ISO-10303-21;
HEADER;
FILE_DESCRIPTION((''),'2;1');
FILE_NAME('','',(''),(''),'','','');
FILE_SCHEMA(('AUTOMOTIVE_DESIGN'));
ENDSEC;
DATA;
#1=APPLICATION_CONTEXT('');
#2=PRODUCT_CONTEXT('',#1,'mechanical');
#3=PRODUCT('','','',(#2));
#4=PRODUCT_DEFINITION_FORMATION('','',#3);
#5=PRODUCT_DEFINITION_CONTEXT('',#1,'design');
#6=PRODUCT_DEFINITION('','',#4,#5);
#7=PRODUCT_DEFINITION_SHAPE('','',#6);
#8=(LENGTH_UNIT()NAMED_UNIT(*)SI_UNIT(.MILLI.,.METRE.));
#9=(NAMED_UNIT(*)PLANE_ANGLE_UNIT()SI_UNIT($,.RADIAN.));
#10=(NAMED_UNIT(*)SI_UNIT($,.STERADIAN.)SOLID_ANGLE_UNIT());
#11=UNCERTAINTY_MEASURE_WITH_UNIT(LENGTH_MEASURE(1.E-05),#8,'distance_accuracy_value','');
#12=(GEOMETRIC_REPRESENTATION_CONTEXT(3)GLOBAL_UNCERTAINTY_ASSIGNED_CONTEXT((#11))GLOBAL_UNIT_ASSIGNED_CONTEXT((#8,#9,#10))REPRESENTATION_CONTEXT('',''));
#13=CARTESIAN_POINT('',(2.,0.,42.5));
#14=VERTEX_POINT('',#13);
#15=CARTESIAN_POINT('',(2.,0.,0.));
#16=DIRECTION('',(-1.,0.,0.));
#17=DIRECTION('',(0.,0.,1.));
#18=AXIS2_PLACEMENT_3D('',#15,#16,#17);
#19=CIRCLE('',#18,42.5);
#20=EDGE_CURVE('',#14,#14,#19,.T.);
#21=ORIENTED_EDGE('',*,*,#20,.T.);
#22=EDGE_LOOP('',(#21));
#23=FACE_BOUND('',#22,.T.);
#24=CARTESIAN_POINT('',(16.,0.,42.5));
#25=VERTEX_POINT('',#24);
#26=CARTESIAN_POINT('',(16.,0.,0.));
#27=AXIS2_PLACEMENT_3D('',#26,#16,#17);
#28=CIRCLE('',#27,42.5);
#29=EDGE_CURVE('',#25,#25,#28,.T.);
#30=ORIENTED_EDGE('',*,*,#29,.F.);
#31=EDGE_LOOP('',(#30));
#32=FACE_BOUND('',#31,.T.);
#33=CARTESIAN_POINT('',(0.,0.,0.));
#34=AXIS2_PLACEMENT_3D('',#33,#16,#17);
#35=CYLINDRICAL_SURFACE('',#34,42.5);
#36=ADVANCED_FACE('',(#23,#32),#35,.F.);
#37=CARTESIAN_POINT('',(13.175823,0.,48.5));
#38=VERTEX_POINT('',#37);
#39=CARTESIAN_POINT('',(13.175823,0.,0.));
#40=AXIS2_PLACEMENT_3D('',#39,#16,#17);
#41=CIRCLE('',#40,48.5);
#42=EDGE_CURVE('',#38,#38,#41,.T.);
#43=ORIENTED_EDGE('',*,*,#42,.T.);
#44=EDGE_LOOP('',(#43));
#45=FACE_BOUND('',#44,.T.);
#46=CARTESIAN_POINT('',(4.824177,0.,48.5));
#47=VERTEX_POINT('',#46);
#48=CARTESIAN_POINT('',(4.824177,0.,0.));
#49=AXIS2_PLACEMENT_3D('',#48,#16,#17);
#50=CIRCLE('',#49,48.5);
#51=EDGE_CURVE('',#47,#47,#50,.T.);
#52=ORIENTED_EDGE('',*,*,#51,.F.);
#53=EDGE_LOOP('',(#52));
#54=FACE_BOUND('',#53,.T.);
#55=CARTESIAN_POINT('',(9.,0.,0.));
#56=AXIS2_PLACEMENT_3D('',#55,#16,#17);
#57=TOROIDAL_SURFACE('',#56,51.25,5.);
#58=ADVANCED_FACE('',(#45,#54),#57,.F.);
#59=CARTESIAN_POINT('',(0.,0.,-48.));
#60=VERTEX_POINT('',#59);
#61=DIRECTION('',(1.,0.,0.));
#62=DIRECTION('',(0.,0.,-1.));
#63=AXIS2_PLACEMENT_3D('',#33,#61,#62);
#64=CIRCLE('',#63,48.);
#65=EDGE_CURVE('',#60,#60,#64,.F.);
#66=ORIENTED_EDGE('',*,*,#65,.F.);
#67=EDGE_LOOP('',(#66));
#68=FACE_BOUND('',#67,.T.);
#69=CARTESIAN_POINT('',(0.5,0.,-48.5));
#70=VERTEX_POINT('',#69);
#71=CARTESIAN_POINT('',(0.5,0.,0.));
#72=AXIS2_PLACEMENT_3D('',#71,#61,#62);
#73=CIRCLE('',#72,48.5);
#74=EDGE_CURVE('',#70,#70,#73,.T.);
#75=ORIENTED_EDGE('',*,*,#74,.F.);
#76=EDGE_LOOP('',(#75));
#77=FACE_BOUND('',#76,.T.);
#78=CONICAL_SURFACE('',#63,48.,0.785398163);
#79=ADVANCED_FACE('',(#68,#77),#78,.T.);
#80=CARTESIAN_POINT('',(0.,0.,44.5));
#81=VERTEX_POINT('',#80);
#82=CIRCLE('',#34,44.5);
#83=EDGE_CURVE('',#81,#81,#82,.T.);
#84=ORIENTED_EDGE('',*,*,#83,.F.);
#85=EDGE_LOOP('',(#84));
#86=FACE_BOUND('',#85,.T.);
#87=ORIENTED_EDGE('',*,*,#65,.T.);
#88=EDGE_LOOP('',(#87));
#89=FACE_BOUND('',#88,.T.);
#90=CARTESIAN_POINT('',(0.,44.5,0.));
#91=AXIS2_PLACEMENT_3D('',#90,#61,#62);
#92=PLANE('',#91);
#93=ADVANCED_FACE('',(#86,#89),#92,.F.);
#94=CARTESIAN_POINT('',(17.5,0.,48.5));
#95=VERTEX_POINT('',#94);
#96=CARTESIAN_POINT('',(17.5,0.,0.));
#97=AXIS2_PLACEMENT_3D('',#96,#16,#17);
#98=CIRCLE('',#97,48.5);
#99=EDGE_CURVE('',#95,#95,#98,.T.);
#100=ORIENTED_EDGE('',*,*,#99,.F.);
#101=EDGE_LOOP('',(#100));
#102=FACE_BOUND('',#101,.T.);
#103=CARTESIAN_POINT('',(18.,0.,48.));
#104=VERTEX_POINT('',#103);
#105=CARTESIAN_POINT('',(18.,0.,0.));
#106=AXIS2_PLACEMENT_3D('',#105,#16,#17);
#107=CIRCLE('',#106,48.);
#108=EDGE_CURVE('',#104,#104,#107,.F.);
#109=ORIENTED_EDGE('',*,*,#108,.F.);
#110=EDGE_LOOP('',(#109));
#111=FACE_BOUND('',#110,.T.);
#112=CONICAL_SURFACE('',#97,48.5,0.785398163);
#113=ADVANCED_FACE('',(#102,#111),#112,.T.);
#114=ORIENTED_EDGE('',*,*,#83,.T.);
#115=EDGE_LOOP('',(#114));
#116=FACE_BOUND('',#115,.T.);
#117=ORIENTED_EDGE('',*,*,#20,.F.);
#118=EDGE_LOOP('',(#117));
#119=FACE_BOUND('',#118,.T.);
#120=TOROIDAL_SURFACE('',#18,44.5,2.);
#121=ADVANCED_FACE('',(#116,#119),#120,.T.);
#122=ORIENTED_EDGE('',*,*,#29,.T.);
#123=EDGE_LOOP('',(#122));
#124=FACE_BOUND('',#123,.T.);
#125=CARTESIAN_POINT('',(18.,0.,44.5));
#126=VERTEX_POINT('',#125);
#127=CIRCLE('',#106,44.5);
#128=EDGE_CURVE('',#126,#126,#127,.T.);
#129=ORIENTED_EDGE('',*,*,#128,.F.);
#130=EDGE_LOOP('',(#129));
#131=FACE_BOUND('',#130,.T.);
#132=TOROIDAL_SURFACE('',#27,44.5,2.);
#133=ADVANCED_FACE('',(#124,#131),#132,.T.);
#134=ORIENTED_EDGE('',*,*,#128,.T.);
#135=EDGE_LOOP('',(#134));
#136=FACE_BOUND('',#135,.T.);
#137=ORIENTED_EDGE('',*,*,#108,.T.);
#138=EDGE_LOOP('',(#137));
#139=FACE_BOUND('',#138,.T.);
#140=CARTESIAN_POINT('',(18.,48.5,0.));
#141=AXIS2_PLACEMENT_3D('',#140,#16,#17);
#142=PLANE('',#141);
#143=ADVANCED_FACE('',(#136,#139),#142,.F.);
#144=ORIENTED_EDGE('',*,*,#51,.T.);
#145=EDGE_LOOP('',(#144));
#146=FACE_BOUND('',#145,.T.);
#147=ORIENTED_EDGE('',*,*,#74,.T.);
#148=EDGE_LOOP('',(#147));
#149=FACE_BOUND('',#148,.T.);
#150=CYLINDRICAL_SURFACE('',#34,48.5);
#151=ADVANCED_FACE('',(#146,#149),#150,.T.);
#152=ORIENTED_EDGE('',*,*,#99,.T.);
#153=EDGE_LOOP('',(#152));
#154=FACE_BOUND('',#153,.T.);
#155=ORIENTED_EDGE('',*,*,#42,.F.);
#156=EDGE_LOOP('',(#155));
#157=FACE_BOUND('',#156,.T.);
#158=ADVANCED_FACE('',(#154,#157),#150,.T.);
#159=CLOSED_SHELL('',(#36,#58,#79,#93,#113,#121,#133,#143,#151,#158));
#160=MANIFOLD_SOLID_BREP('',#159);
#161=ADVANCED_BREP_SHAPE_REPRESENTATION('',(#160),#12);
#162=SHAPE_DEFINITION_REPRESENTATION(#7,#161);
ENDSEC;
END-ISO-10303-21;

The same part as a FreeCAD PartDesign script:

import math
import FreeCAD as App
import Part
import Sketcher
Q = App.Units.Quantity


def edges_at(feature, points):
    """Names of the edges that pass closest to the given points."""
    edges = feature.Shape.Edges
    near = lambda p: min(range(len(edges)), key=lambda i: edges[i].distToShape(Part.Vertex(*p))[0])
    return sorted({f"Edge{near(p) + 1}" for p in points})

doc = App.newDocument("Part")
params = doc.addObject("Spreadsheet::Sheet", "Params")
for row, (alias, value) in enumerate([
    ("sketch1_radius", "2 mm"),
    ("sketch1_radius2", "5 mm"),
    ("sketch1_width", "14 mm"),
    ("sketch1_height", "4 mm"),
    ("revolution_angle", "360 deg"),
    ("chamfer_size", "0.5 mm"),
], start=1):
    params.set(f"A{row}", alias)
    params.set(f"B{row}", "=" + value)
    params.setAlias(f"B{row}", alias)

body = doc.addObject("PartDesign::Body", "Body")

# Sketch on XY plane
sketch1 = body.newObject("Sketcher::SketchObject", "Sketch")
sketch1.AttachmentSupport = (doc.getObject("XY_Plane"), [""])
sketch1.MapMode = "FlatFace"
sketch1.addGeometry([
    Part.LineSegment(App.Vector(2, 42.5, 0), App.Vector(16, 42.5, 0)),  # 0
    Part.ArcOfCircle(Part.Circle(App.Vector(16, 44.5, 0), App.Vector(0, 0, 1), 2), math.radians(-90), math.radians(0)),  # 1
    Part.LineSegment(App.Vector(18, 44.5, 0), App.Vector(18, 48.5, 0)),  # 2
    Part.LineSegment(App.Vector(18, 48.5, 0), App.Vector(13.175823, 48.5, 0)),  # 3
    Part.ArcOfCircle(Part.Circle(App.Vector(9, 51.25, 0), App.Vector(0, 0, 1), 5), math.radians(-146.632987), math.radians(-33.367013)),  # 4
    Part.LineSegment(App.Vector(4.824177, 48.5, 0), App.Vector(0, 48.5, 0)),  # 5
    Part.LineSegment(App.Vector(0, 48.5, 0), App.Vector(0, 44.5, 0)),  # 6
    Part.ArcOfCircle(Part.Circle(App.Vector(2, 44.5, 0), App.Vector(0, 0, 1), 2), math.radians(-180), math.radians(-90)),  # 7
], False)
sketch1.addConstraint([
    Sketcher.Constraint("Tangent", 0, 2, 1, 1),
    Sketcher.Constraint("Tangent", 1, 2, 2, 1),
    Sketcher.Constraint("Coincident", 2, 2, 3, 1),
    Sketcher.Constraint("Coincident", 3, 2, 4, 2),
    Sketcher.Constraint("Coincident", 4, 1, 5, 1),
    Sketcher.Constraint("Coincident", 5, 2, 6, 1),
    Sketcher.Constraint("Tangent", 6, 2, 7, 1),
    Sketcher.Constraint("Tangent", 7, 2, 0, 1),
    Sketcher.Constraint("Horizontal", 0),
    Sketcher.Constraint("Vertical", 2),
    Sketcher.Constraint("Horizontal", 3),
    Sketcher.Constraint("Horizontal", 5),
    Sketcher.Constraint("Vertical", 6),
    Sketcher.Constraint("Equal", 1, 7),
    Sketcher.Constraint("PointOnObject", 5, 2, -2),
    Sketcher.Constraint("Horizontal", 3, 2, 4, 1),
    Sketcher.Constraint("Equal", 3, 5),
    Sketcher.Constraint("Radius", 1, Q("2 mm")),
    Sketcher.Constraint("Radius", 4, Q("5 mm")),
    Sketcher.Constraint("DistanceX", 0, 1, 0, 2, Q("14 mm")),
    Sketcher.Constraint("DistanceY", 2, 1, 2, 2, Q("4 mm")),
    Sketcher.Constraint("DistanceY", -1, 1, 1, 3, Q("44.5 mm")),
    Sketcher.Constraint("DistanceY", -1, 1, 4, 3, Q("51.25 mm")),
])
sketch1.setExpression("Constraints[17]", "Params.sketch1_radius")
sketch1.setExpression("Constraints[18]", "Params.sketch1_radius2")
sketch1.setExpression("Constraints[19]", "Params.sketch1_width")
sketch1.setExpression("Constraints[20]", "Params.sketch1_height")
revolution = body.newObject("PartDesign::Revolution", "Revolution")
revolution.Profile = sketch1
revolution.ReferenceAxis = (sketch1, ["H_Axis"])
revolution.setExpression("Angle", "Params.revolution_angle")
doc.recompute()

chamfer = body.newObject("PartDesign::Chamfer", "Chamfer")
chamfer.Base = (revolution, edges_at(revolution, [(18, 0, -48.5), (0, 0, -48.5)]))
chamfer.setExpression("Size", "Params.chamfer_size")

doc.recompute()
